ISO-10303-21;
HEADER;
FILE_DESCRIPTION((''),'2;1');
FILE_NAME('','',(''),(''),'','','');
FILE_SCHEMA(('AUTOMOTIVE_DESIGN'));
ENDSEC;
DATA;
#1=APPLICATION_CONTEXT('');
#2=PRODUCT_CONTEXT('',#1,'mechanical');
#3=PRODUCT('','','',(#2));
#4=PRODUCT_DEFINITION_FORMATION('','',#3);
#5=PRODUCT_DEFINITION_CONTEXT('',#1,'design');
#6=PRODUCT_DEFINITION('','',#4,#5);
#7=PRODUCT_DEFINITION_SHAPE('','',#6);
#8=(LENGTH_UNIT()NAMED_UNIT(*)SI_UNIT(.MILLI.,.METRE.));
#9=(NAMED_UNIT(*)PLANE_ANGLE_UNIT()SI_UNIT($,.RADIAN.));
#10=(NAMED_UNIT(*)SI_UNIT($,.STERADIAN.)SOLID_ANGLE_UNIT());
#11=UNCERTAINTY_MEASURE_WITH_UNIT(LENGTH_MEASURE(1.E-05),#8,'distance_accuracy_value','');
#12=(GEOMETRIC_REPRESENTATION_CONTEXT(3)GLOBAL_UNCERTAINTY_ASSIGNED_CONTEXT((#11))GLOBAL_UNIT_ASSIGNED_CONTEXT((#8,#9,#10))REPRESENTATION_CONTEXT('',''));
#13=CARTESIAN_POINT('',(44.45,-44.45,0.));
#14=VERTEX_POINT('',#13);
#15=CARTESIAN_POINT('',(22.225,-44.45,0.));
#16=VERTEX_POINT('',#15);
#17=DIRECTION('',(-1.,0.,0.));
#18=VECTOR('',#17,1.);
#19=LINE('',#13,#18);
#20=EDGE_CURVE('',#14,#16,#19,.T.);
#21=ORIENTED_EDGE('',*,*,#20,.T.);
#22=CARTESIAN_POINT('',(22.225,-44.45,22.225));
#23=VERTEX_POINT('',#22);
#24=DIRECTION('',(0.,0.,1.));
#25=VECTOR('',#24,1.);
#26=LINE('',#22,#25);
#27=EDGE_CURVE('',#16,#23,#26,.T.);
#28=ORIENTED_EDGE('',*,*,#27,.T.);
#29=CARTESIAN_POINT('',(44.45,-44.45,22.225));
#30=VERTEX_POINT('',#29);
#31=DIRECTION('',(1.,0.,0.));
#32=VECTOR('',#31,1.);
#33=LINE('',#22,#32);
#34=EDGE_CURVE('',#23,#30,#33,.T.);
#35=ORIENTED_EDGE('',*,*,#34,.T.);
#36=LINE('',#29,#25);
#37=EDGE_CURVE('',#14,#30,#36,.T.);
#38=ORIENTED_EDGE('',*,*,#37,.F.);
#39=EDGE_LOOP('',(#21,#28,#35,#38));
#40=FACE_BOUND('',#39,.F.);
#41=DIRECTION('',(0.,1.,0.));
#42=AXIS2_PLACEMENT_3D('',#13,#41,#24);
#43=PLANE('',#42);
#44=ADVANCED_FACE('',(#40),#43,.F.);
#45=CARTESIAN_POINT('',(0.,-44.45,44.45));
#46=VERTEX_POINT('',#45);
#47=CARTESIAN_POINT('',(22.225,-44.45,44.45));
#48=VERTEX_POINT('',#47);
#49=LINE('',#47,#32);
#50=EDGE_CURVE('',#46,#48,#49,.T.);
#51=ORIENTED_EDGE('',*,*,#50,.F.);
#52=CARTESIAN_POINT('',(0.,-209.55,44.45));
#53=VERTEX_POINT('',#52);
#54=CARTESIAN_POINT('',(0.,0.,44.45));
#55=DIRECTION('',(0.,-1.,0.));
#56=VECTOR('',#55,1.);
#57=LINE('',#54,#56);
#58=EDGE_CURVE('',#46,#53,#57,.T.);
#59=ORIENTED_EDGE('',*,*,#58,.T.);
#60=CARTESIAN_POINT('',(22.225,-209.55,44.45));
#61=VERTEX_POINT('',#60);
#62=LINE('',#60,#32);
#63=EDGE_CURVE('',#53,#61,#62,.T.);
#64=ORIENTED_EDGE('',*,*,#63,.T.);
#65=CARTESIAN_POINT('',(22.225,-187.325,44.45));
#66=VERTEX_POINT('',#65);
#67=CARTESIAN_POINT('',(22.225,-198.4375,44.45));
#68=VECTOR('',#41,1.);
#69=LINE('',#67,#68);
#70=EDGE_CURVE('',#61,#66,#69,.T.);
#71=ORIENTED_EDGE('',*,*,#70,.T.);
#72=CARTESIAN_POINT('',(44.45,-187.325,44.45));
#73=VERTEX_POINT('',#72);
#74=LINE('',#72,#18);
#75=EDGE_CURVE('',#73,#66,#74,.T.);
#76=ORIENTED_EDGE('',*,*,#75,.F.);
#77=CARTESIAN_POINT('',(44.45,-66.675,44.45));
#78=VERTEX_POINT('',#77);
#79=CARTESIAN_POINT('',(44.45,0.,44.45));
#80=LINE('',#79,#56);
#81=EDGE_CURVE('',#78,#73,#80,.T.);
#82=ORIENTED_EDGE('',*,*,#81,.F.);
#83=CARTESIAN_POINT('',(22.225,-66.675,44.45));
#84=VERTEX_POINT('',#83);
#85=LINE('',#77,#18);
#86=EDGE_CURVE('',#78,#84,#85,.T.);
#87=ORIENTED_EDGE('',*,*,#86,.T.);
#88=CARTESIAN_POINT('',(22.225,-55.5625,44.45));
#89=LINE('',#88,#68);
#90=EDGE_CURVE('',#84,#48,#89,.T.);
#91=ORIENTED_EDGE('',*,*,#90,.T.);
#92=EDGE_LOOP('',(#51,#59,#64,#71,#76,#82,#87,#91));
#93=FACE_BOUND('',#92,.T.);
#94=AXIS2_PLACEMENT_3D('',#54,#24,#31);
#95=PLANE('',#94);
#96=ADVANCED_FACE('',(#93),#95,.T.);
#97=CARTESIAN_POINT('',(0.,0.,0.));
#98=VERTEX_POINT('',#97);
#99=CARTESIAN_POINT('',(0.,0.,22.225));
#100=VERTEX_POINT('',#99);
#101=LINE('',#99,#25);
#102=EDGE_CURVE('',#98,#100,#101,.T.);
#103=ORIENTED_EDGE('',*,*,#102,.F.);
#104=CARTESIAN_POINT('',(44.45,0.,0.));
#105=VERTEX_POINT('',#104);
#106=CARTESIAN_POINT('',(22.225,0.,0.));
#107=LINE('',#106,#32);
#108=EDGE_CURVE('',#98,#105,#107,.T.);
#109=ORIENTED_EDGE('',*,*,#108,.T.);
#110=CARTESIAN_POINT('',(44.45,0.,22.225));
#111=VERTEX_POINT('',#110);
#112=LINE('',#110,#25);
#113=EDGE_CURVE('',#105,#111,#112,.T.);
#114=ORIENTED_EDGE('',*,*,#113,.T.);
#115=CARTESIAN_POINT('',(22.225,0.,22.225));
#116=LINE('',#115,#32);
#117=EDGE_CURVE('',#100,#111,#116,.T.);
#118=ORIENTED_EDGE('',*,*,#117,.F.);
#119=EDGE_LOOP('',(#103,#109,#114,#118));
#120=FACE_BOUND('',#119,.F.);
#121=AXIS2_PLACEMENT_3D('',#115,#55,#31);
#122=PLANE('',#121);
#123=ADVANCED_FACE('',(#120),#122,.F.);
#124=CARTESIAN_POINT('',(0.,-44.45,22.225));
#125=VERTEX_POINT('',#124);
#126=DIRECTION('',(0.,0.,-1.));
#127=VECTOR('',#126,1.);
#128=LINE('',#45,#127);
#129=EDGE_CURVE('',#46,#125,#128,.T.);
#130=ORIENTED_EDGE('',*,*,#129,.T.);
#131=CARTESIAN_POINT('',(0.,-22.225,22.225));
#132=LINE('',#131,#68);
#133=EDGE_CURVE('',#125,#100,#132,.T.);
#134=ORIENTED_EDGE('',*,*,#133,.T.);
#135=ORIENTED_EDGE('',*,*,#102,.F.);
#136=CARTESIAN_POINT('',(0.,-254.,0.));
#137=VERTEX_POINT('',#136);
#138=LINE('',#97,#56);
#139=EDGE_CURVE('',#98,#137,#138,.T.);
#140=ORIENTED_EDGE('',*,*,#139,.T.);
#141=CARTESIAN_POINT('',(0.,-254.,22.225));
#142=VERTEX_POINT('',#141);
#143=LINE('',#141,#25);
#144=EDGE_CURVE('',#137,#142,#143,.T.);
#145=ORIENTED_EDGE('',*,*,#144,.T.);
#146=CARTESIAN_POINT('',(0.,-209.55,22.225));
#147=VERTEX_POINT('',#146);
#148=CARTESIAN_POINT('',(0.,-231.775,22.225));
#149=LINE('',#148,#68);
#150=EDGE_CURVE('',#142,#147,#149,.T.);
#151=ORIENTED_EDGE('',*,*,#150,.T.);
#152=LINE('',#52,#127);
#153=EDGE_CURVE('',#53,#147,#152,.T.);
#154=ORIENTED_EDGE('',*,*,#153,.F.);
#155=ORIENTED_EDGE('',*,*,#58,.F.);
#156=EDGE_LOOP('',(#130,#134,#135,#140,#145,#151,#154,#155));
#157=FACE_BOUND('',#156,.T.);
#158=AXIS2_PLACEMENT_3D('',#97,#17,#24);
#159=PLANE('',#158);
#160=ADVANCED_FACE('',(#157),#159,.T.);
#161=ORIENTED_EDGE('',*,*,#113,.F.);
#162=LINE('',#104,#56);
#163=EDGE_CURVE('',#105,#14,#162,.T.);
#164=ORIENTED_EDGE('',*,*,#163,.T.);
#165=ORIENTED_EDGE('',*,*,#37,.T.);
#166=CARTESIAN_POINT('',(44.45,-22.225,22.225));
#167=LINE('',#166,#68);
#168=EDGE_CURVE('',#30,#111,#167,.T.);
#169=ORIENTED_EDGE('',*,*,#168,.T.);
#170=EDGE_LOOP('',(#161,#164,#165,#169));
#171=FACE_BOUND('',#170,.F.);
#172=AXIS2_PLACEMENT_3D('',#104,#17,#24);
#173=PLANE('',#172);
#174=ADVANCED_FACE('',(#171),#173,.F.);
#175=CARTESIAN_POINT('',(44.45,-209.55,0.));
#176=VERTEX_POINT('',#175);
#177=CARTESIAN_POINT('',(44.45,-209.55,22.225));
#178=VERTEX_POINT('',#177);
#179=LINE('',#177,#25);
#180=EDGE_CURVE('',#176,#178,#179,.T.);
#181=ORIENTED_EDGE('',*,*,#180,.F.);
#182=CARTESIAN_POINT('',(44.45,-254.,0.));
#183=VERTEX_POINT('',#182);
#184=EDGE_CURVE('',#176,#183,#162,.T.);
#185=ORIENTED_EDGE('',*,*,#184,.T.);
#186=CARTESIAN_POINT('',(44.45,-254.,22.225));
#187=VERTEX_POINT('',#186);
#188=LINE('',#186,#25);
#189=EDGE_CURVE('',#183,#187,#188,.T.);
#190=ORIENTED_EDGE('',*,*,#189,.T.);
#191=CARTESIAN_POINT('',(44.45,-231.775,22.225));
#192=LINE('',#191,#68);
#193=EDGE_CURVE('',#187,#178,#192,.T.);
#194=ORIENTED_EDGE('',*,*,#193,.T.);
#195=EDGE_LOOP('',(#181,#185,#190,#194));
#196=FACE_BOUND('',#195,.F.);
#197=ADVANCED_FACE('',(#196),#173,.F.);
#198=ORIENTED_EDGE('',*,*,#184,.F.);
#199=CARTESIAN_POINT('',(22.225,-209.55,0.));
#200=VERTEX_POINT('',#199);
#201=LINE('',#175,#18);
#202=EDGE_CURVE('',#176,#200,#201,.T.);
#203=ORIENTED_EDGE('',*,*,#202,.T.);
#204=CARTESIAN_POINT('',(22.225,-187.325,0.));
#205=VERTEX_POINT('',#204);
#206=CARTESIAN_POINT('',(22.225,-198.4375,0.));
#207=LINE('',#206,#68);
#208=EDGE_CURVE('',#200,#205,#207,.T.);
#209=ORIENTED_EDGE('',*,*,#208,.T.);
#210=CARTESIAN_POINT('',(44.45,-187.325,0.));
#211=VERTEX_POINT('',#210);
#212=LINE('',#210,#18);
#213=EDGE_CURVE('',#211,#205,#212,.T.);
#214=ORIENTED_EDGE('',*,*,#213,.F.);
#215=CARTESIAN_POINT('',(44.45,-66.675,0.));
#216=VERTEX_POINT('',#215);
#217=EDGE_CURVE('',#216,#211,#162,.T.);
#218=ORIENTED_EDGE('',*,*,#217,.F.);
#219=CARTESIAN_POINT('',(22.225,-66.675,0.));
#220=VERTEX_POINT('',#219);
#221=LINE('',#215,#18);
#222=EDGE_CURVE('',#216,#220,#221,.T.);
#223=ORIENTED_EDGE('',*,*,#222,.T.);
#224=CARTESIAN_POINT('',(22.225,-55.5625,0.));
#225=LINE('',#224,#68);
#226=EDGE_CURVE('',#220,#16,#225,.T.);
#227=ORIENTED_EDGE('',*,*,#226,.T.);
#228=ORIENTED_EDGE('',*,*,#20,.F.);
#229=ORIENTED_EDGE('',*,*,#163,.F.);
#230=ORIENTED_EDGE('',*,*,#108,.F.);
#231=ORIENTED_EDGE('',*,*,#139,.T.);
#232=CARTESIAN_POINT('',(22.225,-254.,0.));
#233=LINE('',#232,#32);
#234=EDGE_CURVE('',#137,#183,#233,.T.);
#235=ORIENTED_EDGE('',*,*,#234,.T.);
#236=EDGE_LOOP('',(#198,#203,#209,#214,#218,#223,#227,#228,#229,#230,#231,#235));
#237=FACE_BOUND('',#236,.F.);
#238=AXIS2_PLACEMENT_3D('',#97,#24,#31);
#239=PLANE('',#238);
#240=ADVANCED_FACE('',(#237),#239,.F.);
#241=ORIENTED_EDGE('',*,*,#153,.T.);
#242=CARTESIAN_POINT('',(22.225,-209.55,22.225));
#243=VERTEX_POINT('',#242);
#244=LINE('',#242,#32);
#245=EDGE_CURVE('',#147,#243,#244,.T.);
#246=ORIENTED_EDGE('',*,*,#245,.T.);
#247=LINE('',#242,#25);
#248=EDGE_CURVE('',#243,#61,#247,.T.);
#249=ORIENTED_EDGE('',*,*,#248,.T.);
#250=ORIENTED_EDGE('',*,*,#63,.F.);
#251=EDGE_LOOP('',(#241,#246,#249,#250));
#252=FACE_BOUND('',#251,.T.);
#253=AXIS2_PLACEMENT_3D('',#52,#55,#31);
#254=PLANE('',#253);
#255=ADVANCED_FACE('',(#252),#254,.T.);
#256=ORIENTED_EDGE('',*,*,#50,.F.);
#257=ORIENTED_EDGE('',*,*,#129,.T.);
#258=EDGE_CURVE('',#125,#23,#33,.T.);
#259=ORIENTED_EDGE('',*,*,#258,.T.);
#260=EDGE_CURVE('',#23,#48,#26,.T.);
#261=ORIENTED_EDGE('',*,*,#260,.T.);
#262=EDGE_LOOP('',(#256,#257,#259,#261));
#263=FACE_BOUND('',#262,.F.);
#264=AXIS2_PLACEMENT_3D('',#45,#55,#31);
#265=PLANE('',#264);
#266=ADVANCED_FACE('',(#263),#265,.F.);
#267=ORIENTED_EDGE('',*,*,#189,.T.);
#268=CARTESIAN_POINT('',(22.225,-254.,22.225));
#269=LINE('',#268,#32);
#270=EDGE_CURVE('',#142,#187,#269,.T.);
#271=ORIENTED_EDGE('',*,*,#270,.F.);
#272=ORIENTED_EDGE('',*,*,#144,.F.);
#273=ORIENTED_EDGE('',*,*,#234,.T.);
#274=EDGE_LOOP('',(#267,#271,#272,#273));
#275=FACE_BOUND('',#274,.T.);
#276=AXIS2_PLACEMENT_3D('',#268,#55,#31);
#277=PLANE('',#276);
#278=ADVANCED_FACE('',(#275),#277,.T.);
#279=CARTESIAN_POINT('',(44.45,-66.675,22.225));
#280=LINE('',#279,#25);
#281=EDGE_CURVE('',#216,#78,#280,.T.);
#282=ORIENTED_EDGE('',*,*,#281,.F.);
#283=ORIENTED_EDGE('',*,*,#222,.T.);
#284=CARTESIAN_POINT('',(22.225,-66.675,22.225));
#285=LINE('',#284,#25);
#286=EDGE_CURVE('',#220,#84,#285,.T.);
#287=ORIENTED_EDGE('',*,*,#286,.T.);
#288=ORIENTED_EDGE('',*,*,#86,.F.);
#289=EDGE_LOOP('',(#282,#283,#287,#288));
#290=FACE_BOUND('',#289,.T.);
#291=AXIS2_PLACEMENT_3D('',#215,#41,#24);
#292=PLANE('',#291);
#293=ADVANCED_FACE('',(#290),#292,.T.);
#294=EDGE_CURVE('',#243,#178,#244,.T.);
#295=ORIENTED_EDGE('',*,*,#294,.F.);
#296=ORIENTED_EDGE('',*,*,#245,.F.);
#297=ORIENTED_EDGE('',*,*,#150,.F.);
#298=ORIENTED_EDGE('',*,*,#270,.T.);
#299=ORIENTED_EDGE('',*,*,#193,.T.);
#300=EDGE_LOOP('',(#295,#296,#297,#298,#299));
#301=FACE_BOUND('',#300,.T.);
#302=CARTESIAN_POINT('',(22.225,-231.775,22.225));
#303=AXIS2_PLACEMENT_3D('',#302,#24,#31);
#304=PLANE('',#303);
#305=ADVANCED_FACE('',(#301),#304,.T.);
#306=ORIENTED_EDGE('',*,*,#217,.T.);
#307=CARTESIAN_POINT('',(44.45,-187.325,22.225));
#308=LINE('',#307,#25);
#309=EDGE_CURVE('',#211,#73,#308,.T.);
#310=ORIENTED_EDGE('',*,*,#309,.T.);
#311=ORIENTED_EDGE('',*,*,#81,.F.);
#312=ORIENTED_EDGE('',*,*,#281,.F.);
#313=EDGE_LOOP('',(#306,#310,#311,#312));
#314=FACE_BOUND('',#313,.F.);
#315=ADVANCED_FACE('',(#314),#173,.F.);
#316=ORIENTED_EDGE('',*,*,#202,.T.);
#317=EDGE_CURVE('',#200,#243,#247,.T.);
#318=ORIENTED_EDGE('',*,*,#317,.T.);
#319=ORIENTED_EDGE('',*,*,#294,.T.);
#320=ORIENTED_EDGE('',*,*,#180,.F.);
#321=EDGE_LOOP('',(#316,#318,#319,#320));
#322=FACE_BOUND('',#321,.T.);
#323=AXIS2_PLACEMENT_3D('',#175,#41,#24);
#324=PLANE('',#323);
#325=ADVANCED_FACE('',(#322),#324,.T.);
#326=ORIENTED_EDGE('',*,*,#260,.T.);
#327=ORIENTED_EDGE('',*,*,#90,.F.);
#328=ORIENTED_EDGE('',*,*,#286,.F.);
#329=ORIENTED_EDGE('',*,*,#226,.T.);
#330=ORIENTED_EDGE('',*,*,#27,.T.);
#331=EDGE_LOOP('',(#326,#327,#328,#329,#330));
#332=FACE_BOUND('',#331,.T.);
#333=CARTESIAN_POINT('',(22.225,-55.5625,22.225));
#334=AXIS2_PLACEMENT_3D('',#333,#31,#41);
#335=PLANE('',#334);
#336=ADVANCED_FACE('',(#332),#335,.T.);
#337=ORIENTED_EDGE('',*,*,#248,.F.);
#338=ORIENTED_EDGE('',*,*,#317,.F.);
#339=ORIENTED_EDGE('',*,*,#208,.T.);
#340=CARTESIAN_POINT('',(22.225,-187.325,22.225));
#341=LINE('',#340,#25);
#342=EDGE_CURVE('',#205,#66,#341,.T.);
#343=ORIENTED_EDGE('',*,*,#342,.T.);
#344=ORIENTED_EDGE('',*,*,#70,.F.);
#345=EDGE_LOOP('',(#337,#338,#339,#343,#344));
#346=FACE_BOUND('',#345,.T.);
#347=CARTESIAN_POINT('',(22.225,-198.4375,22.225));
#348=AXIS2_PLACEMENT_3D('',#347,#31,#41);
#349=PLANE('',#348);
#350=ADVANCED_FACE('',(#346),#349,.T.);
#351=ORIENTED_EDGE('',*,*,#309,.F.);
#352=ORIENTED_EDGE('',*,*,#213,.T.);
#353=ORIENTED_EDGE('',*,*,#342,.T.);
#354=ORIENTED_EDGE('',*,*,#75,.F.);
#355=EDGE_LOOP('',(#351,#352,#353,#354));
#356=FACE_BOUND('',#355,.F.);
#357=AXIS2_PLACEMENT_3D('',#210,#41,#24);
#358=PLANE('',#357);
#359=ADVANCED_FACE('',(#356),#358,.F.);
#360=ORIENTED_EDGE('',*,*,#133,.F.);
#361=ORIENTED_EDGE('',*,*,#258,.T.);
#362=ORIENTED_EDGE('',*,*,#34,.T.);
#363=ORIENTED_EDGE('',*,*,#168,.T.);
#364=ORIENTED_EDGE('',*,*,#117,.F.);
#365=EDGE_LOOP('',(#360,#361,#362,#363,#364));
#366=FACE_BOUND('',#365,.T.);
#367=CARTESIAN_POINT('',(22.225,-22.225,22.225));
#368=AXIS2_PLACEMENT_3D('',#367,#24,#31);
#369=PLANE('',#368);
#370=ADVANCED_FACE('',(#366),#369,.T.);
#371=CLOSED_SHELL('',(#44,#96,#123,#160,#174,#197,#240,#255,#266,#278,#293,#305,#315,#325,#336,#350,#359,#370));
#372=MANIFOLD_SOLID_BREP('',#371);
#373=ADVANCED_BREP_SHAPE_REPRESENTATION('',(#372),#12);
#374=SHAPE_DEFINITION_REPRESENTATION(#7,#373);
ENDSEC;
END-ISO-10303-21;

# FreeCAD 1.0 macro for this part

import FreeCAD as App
import Part
import Sketcher
from FreeCAD import Vector
Q = App.Units.Quantity

doc = App.newDocument("Part")
params = doc.addObject("Spreadsheet::Sheet", "Params")
for row, (alias, value) in enumerate([
    ("sketch1_width", "1.75 in"),
    ("pad1_length", "10 in"),
    ("sketch2_width", "1.75 in"),
    ("pocket1_length", "0.875 in"),
    ("sketch3_height", "1.75 in"),
    ("sketch3_width", "0.875 in"),
    ("pocket2_length", "0.875 in"),
], start=1):
    params.set(f"A{row}", alias)
    params.set(f"B{row}", "=" + value)
    params.setAlias(f"B{row}", alias)

body = doc.addObject("PartDesign::Body", "Body")

# Sketch on XZ plane
sketch1 = doc.addObject("Sketcher::SketchObject", "Sketch")
body.addObject(sketch1)
sketch1.AttachmentSupport = (doc.XZ_Plane, [""])
sketch1.MapMode = "FlatFace"
sketch1.addGeometry(Part.LineSegment(Vector(0, 44.45, 0), Vector(0, 0, 0)), False)
sketch1.addGeometry(Part.LineSegment(Vector(0, 0, 0), Vector(44.45, 0, 0)), False)
sketch1.addGeometry(Part.LineSegment(Vector(44.45, 0, 0), Vector(44.45, 44.45, 0)), False)
sketch1.addGeometry(Part.LineSegment(Vector(44.45, 44.45, 0), Vector(0, 44.45, 0)), False)
sketch1.addConstraint(Sketcher.Constraint("Coincident", 0, 2, 1, 1))
sketch1.addConstraint(Sketcher.Constraint("Coincident", 1, 2, 2, 1))
sketch1.addConstraint(Sketcher.Constraint("Coincident", 2, 2, 3, 1))
sketch1.addConstraint(Sketcher.Constraint("Coincident", 3, 2, 0, 1))
sketch1.addConstraint(Sketcher.Constraint("Vertical", 0))
sketch1.addConstraint(Sketcher.Constraint("Horizontal", 1))
sketch1.addConstraint(Sketcher.Constraint("Vertical", 2))
sketch1.addConstraint(Sketcher.Constraint("Horizontal", 3))
sketch1.addConstraint(Sketcher.Constraint("Coincident", 0, 2, -1, 1))
sketch1.addConstraint(Sketcher.Constraint("Equal", 3, 0))
sketch1.addConstraint(Sketcher.Constraint("DistanceX", 1, 1, 1, 2, Q("1.75 in")))
sketch1.setExpression("Constraints[10]", "Params.sketch1_width")
pad1 = doc.addObject("PartDesign::Pad", "Pad")
body.addObject(pad1)
pad1.Profile = sketch1
pad1.setExpression("Length", "Params.pad1_length")

# Sketch on XY plane
sketch2 = doc.addObject("Sketcher::SketchObject", "Sketch001")
body.addObject(sketch2)
sketch2.AttachmentSupport = (doc.XY_Plane, [""])
sketch2.MapMode = "FlatFace"
sketch2.AttachmentOffset = App.Placement(Vector(0, 0, 1.75 * 25.4), App.Rotation())
sketch2.addGeometry(Part.LineSegment(Vector(0, -209.55, 0), Vector(0, -254, 0)), False)
sketch2.addGeometry(Part.LineSegment(Vector(0, -254, 0), Vector(44.45, -254, 0)), False)
sketch2.addGeometry(Part.LineSegment(Vector(44.45, -254, 0), Vector(44.45, -209.55, 0)), False)
sketch2.addGeometry(Part.LineSegment(Vector(44.45, -209.55, 0), Vector(0, -209.55, 0)), False)
sketch2.addGeometry(Part.LineSegment(Vector(0, 0, 0), Vector(0, -44.45, 0)), False)
sketch2.addGeometry(Part.LineSegment(Vector(0, -44.45, 0), Vector(44.45, -44.45, 0)), False)
sketch2.addGeometry(Part.LineSegment(Vector(44.45, -44.45, 0), Vector(44.45, 0, 0)), False)
sketch2.addGeometry(Part.LineSegment(Vector(44.45, 0, 0), Vector(0, 0, 0)), False)
sketch2.addConstraint(Sketcher.Constraint("Coincident", 0, 2, 1, 1))
sketch2.addConstraint(Sketcher.Constraint("Coincident", 1, 2, 2, 1))
sketch2.addConstraint(Sketcher.Constraint("Coincident", 2, 2, 3, 1))
sketch2.addConstraint(Sketcher.Constraint("Coincident", 3, 2, 0, 1))
sketch2.addConstraint(Sketcher.Constraint("Coincident", 4, 2, 5, 1))
sketch2.addConstraint(Sketcher.Constraint("Coincident", 5, 2, 6, 1))
sketch2.addConstraint(Sketcher.Constraint("Coincident", 6, 2, 7, 1))
sketch2.addConstraint(Sketcher.Constraint("Coincident", 7, 2, 4, 1))
sketch2.addConstraint(Sketcher.Constraint("Vertical", 0))
sketch2.addConstraint(Sketcher.Constraint("Horizontal", 1))
sketch2.addConstraint(Sketcher.Constraint("Vertical", 2))
sketch2.addConstraint(Sketcher.Constraint("Horizontal", 3))
sketch2.addConstraint(Sketcher.Constraint("Vertical", 4))
sketch2.addConstraint(Sketcher.Constraint("Horizontal", 5))
sketch2.addConstraint(Sketcher.Constraint("Vertical", 6))
sketch2.addConstraint(Sketcher.Constraint("Horizontal", 7))
sketch2.addConstraint(Sketcher.Constraint("Coincident", 7, 2, -1, 1))
sketch2.addConstraint(Sketcher.Constraint("PointOnObject", 0, 2, -2))
sketch2.addConstraint(Sketcher.Constraint("Vertical", 2, 2, 5, 2))
sketch2.addConstraint(Sketcher.Constraint("Equal", 7, 0))
sketch2.addConstraint(Sketcher.Constraint("Equal", 2, 4))
sketch2.addConstraint(Sketcher.Constraint("DistanceY", 0, 2, -1, 1, Q("10 in")))
sketch2.addConstraint(Sketcher.Constraint("DistanceX", 1, 1, 1, 2, Q("1.75 in")))
sketch2.setExpression("Constraints[22]", "Params.sketch2_width")
pocket1 = doc.addObject("PartDesign::Pocket", "Pocket")
body.addObject(pocket1)
pocket1.Profile = sketch2
pocket1.setExpression("Length", "Params.pocket1_length")

# Sketch on YZ plane
sketch3 = doc.addObject("Sketcher::SketchObject", "Sketch002")
body.addObject(sketch3)
sketch3.AttachmentSupport = (doc.YZ_Plane, [""])
sketch3.MapMode = "FlatFace"
sketch3.AttachmentOffset = App.Placement(Vector(0, 0, 1.75 * 25.4), App.Rotation())
sketch3.addGeometry(Part.LineSegment(Vector(-209.55, 44.45, 0), Vector(-209.55, 0, 0)), False)
sketch3.addGeometry(Part.LineSegment(Vector(-209.55, 0, 0), Vector(-187.325, 0, 0)), False)
sketch3.addGeometry(Part.LineSegment(Vector(-187.325, 0, 0), Vector(-187.325, 44.45, 0)), False)
sketch3.addGeometry(Part.LineSegment(Vector(-187.325, 44.45, 0), Vector(-209.55, 44.45, 0)), False)
sketch3.addGeometry(Part.LineSegment(Vector(-66.675, 44.45, 0), Vector(-66.675, 0, 0)), False)
sketch3.addGeometry(Part.LineSegment(Vector(-66.675, 0, 0), Vector(-44.45, 0, 0)), False)
sketch3.addGeometry(Part.LineSegment(Vector(-44.45, 0, 0), Vector(-44.45, 44.45, 0)), False)
sketch3.addGeometry(Part.LineSegment(Vector(-44.45, 44.45, 0), Vector(-66.675, 44.45, 0)), False)
sketch3.addConstraint(Sketcher.Constraint("Coincident", 0, 2, 1, 1))
sketch3.addConstraint(Sketcher.Constraint("Coincident", 1, 2, 2, 1))
sketch3.addConstraint(Sketcher.Constraint("Coincident", 2, 2, 3, 1))
sketch3.addConstraint(Sketcher.Constraint("Coincident", 3, 2, 0, 1))
sketch3.addConstraint(Sketcher.Constraint("Coincident", 4, 2, 5, 1))
sketch3.addConstraint(Sketcher.Constraint("Coincident", 5, 2, 6, 1))
sketch3.addConstraint(Sketcher.Constraint("Coincident", 6, 2, 7, 1))
sketch3.addConstraint(Sketcher.Constraint("Coincident", 7, 2, 4, 1))
sketch3.addConstraint(Sketcher.Constraint("Vertical", 0))
sketch3.addConstraint(Sketcher.Constraint("Horizontal", 1))
sketch3.addConstraint(Sketcher.Constraint("Vertical", 2))
sketch3.addConstraint(Sketcher.Constraint("Horizontal", 3))
sketch3.addConstraint(Sketcher.Constraint("Vertical", 4))
sketch3.addConstraint(Sketcher.Constraint("Horizontal", 5))
sketch3.addConstraint(Sketcher.Constraint("Vertical", 6))
sketch3.addConstraint(Sketcher.Constraint("Horizontal", 7))
sketch3.addConstraint(Sketcher.Constraint("PointOnObject", 0, 2, -1))
sketch3.addConstraint(Sketcher.Constraint("PointOnObject", 4, 2, -1))
sketch3.addConstraint(Sketcher.Constraint("Horizontal", 3, 2, 6, 2))
sketch3.addConstraint(Sketcher.Constraint("Equal", 3, 5))
sketch3.addConstraint(Sketcher.Constraint("DistanceY", 0, 2, 0, 1, Q("1.75 in")))
sketch3.addConstraint(Sketcher.Constraint("DistanceX", 0, 2, 5, 2, Q("6.5 in")))
sketch3.addConstraint(Sketcher.Constraint("DistanceX", 1, 1, 1, 2, Q("0.875 in")))
sketch3.addConstraint(Sketcher.Constraint("DistanceX", 0, 2, -1, 1, Q("8.25 in")))
sketch3.setExpression("Constraints[20]", "Params.sketch3_height")
sketch3.setExpression("Constraints[22]", "Params.sketch3_width")
pocket2 = doc.addObject("PartDesign::Pocket", "Pocket001")
body.addObject(pocket2)
pocket2.Profile = sketch3
pocket2.setExpression("Length", "Params.pocket2_length")

doc.recompute()
